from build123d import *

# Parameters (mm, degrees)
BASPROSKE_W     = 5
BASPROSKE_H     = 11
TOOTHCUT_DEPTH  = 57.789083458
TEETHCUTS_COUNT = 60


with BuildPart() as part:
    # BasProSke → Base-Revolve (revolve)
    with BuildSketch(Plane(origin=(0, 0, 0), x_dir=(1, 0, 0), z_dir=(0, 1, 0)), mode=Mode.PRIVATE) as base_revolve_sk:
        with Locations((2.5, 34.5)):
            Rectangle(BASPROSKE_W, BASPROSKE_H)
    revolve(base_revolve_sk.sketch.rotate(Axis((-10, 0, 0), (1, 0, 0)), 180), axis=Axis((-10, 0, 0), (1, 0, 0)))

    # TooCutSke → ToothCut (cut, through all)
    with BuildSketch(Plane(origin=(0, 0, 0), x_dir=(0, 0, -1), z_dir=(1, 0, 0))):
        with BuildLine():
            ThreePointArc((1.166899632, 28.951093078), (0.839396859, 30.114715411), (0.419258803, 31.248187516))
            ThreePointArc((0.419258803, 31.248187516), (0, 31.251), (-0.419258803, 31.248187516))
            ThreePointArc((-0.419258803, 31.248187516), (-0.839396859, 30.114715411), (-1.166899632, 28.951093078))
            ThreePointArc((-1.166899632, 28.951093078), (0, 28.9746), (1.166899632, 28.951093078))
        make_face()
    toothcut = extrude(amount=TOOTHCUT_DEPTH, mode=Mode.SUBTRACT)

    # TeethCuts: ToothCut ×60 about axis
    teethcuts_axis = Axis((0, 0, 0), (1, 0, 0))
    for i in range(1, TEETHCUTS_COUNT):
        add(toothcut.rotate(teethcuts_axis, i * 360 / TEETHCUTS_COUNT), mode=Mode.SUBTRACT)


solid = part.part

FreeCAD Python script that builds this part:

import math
import FreeCAD as App
import Part
import Sketcher
Q = App.Units.Quantity

doc = App.newDocument("Part")
body = doc.addObject("PartDesign::Body", "Body")

sketch1 = body.newObject("Sketcher::SketchObject", "Sketch")
sketch1.AttachmentSupport = (doc.getObject("XZ_Plane"), [""])
sketch1.MapMode = "FlatFace"
sketch1.addGeometry([
    Part.LineSegment(App.Vector(0, -40, 0), App.Vector(0, -29, 0)),
    Part.LineSegment(App.Vector(0, -29, 0), App.Vector(5, -29, 0)),
    Part.LineSegment(App.Vector(5, -29, 0), App.Vector(5, -40, 0)),
    Part.LineSegment(App.Vector(5, -40, 0), App.Vector(0, -40, 0)),
], False)
sketch1.addConstraint([
    Sketcher.Constraint("Coincident", 0, 2, 1, 1),
    Sketcher.Constraint("Coincident", 1, 2, 2, 1),
    Sketcher.Constraint("Coincident", 2, 2, 3, 1),
    Sketcher.Constraint("Coincident", 3, 2, 0, 1),
    Sketcher.Constraint("Vertical", 0),
    Sketcher.Constraint("Horizontal", 1),
    Sketcher.Constraint("Vertical", 2),
    Sketcher.Constraint("Horizontal", 3),
    Sketcher.Constraint("PointOnObject", 0, 2, -2),
    Sketcher.Constraint("DistanceX", 1, 1, 1, 2, Q("5 mm")),
    Sketcher.Constraint("DistanceY", 0, 1, 0, 2, Q("11 mm")),
    Sketcher.Constraint("DistanceY", 0, 2, -1, 1, Q("29 mm")),
])
revolution = body.newObject("PartDesign::Revolution", "Revolution")
revolution.Profile = sketch1
revolution.ReferenceAxis = (sketch1, ["H_Axis"])
revolution.Angle = 360

sketch2 = body.newObject("Sketcher::SketchObject", "Sketch001")
sketch2.AttachmentSupport = (doc.getObject("YZ_Plane"), [""])
sketch2.MapMode = "FlatFace"
sketch2.addGeometry([
    Part.ArcOfCircle(Part.Circle(App.Vector(25.47233, 13.424132, 0), App.Vector(0, 0, 1), 15), math.radians(-76.59001), math.radians(-67.352712)),
    Part.ArcOfCircle(Part.Circle(App.Vector(0.000004, 0, 0), App.Vector(0, 0, 1), 31.250996), math.radians(-0.768695), math.radians(0.768695)),
    Part.ArcOfCircle(Part.Circle(App.Vector(25.47233, -13.424132, 0), App.Vector(0, 0, 1), 15), math.radians(67.352712), math.radians(76.59001)),
    Part.ArcOfCircle(Part.Circle(App.Vector(0, 0, 0), App.Vector(0, 0, 1), 28.9746), math.radians(-2.308108), math.radians(2.308108)),
], False)
sketch2.addConstraint([
    Sketcher.Constraint("Coincident", 0, 2, 1, 1),
    Sketcher.Constraint("Coincident", 1, 2, 2, 1),
    Sketcher.Constraint("Coincident", 2, 2, 3, 2),
    Sketcher.Constraint("Coincident", 3, 1, 0, 1),
    Sketcher.Constraint("Coincident", 1, 3, -1, 1),
    Sketcher.Constraint("Coincident", 3, 3, -1, 1),
    Sketcher.Constraint("Equal", 0, 2),
    Sketcher.Constraint("Symmetric", 0, 3, 2, 3, -1),
    Sketcher.Constraint("Radius", 0, Q("15 mm")),
    Sketcher.Constraint("Radius", 3, Q("28.9746 mm")),
    Sketcher.Constraint("Radius", 1, Q("31.250996 mm")),
    Sketcher.Constraint("DistanceY", -1, 1, 2, 2, Q("1.1669 mm")),
    Sketcher.Constraint("DistanceX", -1, 1, 0, 3, Q("25.47233 mm")),
])
pocket1 = body.newObject("PartDesign::Pocket", "Pocket")
pocket1.Profile = sketch2
pocket1.Type = "ThroughAll"
pocket1.Reversed = True
doc.recompute()

polarpattern = body.newObject("PartDesign::PolarPattern", "PolarPattern")
polarpattern.Originals = [pocket1]
polarpattern.Axis = (doc.getObject("X_Axis"), [""])
polarpattern.Angle = 360
polarpattern.Occurrences = 60
body.Tip = polarpattern

doc.recompute()
